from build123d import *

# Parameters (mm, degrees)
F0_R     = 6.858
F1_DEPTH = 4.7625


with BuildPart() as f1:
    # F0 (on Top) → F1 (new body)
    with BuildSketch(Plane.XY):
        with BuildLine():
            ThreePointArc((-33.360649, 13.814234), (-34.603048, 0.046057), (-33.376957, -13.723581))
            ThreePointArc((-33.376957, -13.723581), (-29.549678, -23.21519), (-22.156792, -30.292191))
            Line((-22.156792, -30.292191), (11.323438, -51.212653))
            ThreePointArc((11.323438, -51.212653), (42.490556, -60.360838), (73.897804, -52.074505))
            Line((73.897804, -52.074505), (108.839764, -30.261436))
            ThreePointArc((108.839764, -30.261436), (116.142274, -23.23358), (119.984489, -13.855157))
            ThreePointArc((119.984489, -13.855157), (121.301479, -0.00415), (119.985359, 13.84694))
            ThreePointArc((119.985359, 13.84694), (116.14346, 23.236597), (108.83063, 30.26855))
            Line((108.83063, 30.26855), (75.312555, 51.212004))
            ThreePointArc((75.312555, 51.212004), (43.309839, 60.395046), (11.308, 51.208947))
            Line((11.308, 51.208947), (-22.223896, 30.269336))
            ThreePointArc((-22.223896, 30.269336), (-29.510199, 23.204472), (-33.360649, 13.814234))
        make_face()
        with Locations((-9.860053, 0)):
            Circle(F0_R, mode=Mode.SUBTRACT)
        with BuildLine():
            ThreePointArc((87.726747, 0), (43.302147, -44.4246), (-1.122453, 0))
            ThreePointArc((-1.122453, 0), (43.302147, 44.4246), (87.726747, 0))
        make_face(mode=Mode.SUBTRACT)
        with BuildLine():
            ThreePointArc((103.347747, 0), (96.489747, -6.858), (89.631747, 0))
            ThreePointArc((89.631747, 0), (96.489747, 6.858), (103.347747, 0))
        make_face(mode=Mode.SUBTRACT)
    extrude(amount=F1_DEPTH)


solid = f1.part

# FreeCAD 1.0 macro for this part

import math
import FreeCAD as App
import Part
import Sketcher

V = App.Vector
Q = App.Units.Quantity

doc = App.newDocument("Part")
body = doc.addObject("PartDesign::Body", "Body")

# Sketch on XY plane
sketch1 = doc.addObject("Sketcher::SketchObject", "Sketch")
body.addObject(sketch1)
sketch1.AttachmentSupport = (doc.XY_Plane, [""])
sketch1.MapMode = "FlatFace"
sketch1.addGeometry([
    Part.ArcOfCircle(Part.Circle(V(43, 0, 0), V(0, 0, 1), 77), math.radians(170), math.radians(190)),  # 0
    Part.ArcOfCircle(Part.Circle(V(-9, -10, 0), V(0, 0, 1), 24), math.radians(-170), math.radians(-122)),  # 1
    Part.LineSegment(V(-22, -30, 0), V(11, -51, 0)),  # 2
    Part.ArcOfCircle(Part.Circle(V(43, 0, 0), V(0, 0, 1), 61), math.radians(-122), math.radians(-60)),  # 3
    Part.LineSegment(V(74, -52, 0), V(109, -30, 0)),  # 4
    Part.ArcOfCircle(Part.Circle(V(96, -9, 0), V(0, 0, 1), 25), math.radians(-58), math.radians(-10)),  # 5
    Part.ArcOfCircle(Part.Circle(V(48, 0, 0), V(0, 0, 1), 74), math.radians(-11), math.radians(11)),  # 6
    Part.ArcOfCircle(Part.Circle(V(96, 9, 0), V(0, 0, 1), 25), math.radians(10), math.radians(58)),  # 7
    Part.LineSegment(V(109, 30, 0), V(75, 51, 0)),  # 8
    Part.ArcOfCircle(Part.Circle(V(43, 0, 0), V(0, 0, 1), 60), math.radians(58), math.radians(122)),  # 9
    Part.LineSegment(V(11, 51, 0), V(-22, 30, 0)),  # 10
    Part.ArcOfCircle(Part.Circle(V(-9, 9, 0), V(0, 0, 1), 25), math.radians(122), math.radians(169)),  # 11
    Part.Circle(V(-10, 0, 0), V(0, 0, 1), 7),  # 12
    Part.Circle(V(43, 0, 0), V(0, 0, 1), 44),  # 13
    Part.Circle(V(96, 0, 0), V(0, 0, 1), 7),  # 14
], False)
sketch1.addConstraint([
    Sketcher.Constraint("Coincident", 0, 2, 1, 1),
    Sketcher.Constraint("Coincident", 1, 2, 2, 1),
    Sketcher.Constraint("Coincident", 2, 2, 3, 1),
    Sketcher.Constraint("Coincident", 3, 2, 4, 1),
    Sketcher.Constraint("Coincident", 4, 2, 5, 1),
    Sketcher.Constraint("Coincident", 5, 2, 6, 1),
    Sketcher.Constraint("Coincident", 6, 2, 7, 1),
    Sketcher.Constraint("Coincident", 7, 2, 8, 1),
    Sketcher.Constraint("Coincident", 8, 2, 9, 1),
    Sketcher.Constraint("Coincident", 9, 2, 10, 1),
    Sketcher.Constraint("Coincident", 10, 2, 11, 1),
    Sketcher.Constraint("Coincident", 11, 2, 0, 1),
    Sketcher.Constraint("Equal", 12, 14),
    Sketcher.Constraint("PointOnObject", 12, 3, -1),
    Sketcher.Constraint("PointOnObject", 13, 3, -1),
    Sketcher.Constraint("PointOnObject", 14, 3, -1),
    Sketcher.Constraint("Diameter", 12, Q("0.54 in")),
    Sketcher.Constraint("Diameter", 13, Q("3.498 in")),
    Sketcher.Constraint("Radius", 11, 24.82713),
    Sketcher.Constraint("Radius", 0, 77.418263),
    Sketcher.Constraint("Radius", 1, 24.322423),
    Sketcher.Constraint("Radius", 3, 60.510906),
    Sketcher.Constraint("Radius", 5, 24.554998),
    Sketcher.Constraint("Radius", 6, 73.519474),
    Sketcher.Constraint("Radius", 7, 24.529714),
    Sketcher.Constraint("Radius", 9, 60.345887),
    Sketcher.Constraint("DistanceX", 1, 3, 2, 2, Q("0.8163 in")),
    Sketcher.Constraint("Distance", 2, 39.479001),
    Sketcher.Constraint("DistanceX", -1, 1, 0, 3, 42.815201),
    Sketcher.Constraint("DistanceX", -1, 1, 9, 2, 11.308),
    Sketcher.Constraint("DistanceX", 1, 3, 7, 3, 105.2629),
    Sketcher.Constraint("DistanceY", 6, 3, 9, 3, 0.051),
    Sketcher.Constraint("DistanceY", 1, 2, 0, 3, 30.292401),
    Sketcher.Constraint("DistanceX", 6, 3, 3, 2, 26.115799),
    Sketcher.Constraint("DistanceY", 7, 3, 8, 2, 41.758599),
    Sketcher.Constraint("Distance", 8, 39.523279),
    Sketcher.Constraint("DistanceY", -1, 1, 0, 3, 0.00021),
    Sketcher.Constraint("DistanceX", -1, 1, 3, 3, 43.323908),
    Sketcher.Constraint("DistanceY", -1, 1, 3, 3, 0.144329),
    Sketcher.Constraint("DistanceY", 6, 3, -1, 1, 0.001841),
    Sketcher.Constraint("DistanceX", -1, 1, 9, 3, 43.312721),
    Sketcher.Constraint("DistanceX", 11, 3, -1, 1, 8.949408),
    Sketcher.Constraint("DistanceY", 0, 2, -1, 1, 13.723581),
    Sketcher.Constraint("DistanceX", -1, 1, 5, 2, 119.984489),
    Sketcher.Constraint("DistanceX", -1, 1, 6, 2, 119.985359),
    Sketcher.Constraint("DistanceY", -1, 1, 6, 2, 13.84694),
    Sketcher.Constraint("DistanceX", 11, 2, -1, 1, 33.360649),
    Sketcher.Constraint("DistanceX", 0, 3, 5, 3, 53.015251),
    Sketcher.Constraint("DistanceX", 12, 3, 1, 3, 0.44947),
    Sketcher.Constraint("DistanceX", 13, 3, 3, 3, 0.021761),
    Sketcher.Constraint("DistanceX", 7, 3, 14, 3, 0.63743),
    Sketcher.Constraint("DistanceX", 5, 3, 4, 2, 13.009312),
    Sketcher.Constraint("DistanceY", 10, 2, 9, 2, 20.939611),
])
pad1 = doc.addObject("PartDesign::Pad", "Pad")
body.addObject(pad1)
pad1.Profile = sketch1
pad1.Length = Q("0.1875 in")

doc.recompute()
